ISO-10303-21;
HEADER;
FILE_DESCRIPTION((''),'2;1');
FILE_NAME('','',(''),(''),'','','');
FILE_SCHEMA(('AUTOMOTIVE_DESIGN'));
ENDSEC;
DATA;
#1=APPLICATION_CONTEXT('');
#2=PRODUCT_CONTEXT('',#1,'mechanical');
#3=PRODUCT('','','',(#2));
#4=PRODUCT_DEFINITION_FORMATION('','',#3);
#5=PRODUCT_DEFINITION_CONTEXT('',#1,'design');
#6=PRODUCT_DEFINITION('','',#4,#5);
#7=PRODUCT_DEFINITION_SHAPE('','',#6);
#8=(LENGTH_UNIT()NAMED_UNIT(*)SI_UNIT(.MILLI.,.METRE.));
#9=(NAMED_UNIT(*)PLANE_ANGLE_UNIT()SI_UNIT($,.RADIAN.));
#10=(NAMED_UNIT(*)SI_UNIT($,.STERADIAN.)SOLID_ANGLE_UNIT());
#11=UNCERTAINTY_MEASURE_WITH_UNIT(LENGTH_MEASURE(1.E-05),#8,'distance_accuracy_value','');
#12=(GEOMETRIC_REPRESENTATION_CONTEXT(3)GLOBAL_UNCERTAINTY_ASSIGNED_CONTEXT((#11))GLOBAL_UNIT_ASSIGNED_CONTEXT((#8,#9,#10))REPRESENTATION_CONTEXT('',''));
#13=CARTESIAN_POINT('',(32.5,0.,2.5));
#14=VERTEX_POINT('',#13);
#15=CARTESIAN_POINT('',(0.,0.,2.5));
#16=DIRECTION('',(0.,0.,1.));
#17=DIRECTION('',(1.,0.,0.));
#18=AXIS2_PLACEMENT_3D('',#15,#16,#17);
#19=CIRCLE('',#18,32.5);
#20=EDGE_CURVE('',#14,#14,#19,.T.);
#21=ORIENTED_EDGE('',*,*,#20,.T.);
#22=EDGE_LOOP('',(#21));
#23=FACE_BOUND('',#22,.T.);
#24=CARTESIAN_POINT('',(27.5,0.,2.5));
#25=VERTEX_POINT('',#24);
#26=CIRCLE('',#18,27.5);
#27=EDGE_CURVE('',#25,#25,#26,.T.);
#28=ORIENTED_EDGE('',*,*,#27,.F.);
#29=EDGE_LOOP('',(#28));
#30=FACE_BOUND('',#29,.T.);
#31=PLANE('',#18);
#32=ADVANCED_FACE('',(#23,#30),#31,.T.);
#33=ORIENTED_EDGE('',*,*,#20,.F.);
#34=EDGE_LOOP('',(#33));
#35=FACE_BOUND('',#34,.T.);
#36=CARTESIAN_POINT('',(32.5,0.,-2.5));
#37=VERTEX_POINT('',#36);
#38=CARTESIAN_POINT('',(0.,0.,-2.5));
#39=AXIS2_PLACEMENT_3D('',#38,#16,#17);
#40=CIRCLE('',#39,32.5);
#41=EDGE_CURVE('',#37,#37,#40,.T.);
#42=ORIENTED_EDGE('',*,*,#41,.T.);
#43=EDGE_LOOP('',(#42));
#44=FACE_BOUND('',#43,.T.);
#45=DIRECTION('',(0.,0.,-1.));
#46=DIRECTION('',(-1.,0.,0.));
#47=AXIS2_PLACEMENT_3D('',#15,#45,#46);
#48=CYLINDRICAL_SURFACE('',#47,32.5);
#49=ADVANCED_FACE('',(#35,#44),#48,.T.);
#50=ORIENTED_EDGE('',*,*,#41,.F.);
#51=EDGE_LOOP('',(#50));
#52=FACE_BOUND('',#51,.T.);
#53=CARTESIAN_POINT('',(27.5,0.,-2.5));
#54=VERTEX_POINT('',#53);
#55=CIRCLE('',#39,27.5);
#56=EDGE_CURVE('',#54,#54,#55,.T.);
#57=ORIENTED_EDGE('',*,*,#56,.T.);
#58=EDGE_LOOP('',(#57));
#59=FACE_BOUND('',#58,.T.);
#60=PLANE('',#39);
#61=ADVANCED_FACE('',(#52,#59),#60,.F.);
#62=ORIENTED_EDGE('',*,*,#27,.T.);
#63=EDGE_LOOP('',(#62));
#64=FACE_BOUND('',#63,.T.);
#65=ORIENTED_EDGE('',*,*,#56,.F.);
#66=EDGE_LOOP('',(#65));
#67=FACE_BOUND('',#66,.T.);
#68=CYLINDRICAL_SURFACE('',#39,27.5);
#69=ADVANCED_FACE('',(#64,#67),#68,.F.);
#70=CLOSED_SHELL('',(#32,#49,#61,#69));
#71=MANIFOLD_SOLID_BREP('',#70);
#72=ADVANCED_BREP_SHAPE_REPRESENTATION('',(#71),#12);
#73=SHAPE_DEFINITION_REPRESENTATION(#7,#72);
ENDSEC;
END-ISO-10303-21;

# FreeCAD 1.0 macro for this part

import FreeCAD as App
import Part
import Sketcher
Q = App.Units.Quantity

doc = App.newDocument("Part")
params = doc.addObject("Spreadsheet::Sheet", "Params")
for row, (alias, value) in enumerate([
    ("sketch1_diameter", "65 mm"),
    ("pad1_length", "5 mm"),
    ("sketch2_diameter", "55 mm"),
    ("pocket1_length", "5 mm"),
], start=1):
    params.set(f"A{row}", alias)
    params.set(f"B{row}", "=" + value)
    params.setAlias(f"B{row}", alias)

body = doc.addObject("PartDesign::Body", "Body")

# Sketch on XY plane
sketch1 = doc.addObject("Sketcher::SketchObject", "Sketch")
body.addObject(sketch1)
sketch1.AttachmentSupport = (doc.XY_Plane, [""])
sketch1.MapMode = "FlatFace"
sketch1.addGeometry(Part.Circle(App.Vector(0, 0, 0), App.Vector(0, 0, 1), 32), False)
sketch1.addConstraint([
    Sketcher.Constraint("Coincident", 0, 3, -1, 1),
    Sketcher.Constraint("Diameter", 0, Q("65 mm")),
])
sketch1.setExpression("Constraints[1]", "Params.sketch1_diameter")
pad1 = doc.addObject("PartDesign::Pad", "Pad")
body.addObject(pad1)
pad1.Profile = sketch1
pad1.setExpression("Length", "Params.pad1_length")
pad1.Midplane = True

# Sketch on XY plane
sketch2 = doc.addObject("Sketcher::SketchObject", "Sketch001")
body.addObject(sketch2)
sketch2.AttachmentSupport = (doc.XY_Plane, [""])
sketch2.MapMode = "FlatFace"
sketch2.AttachmentOffset = App.Placement(App.Vector(0, 0, 2.5), App.Rotation())
sketch2.addGeometry(Part.Circle(App.Vector(0, 0, 0), App.Vector(0, 0, 1), 28), False)
sketch2.addConstraint([
    Sketcher.Constraint("Coincident", 0, 3, -1, 1),
    Sketcher.Constraint("Diameter", 0, Q("55 mm")),
])
sketch2.setExpression("Constraints[1]", "Params.sketch2_diameter")
pocket1 = doc.addObject("PartDesign::Pocket", "Pocket")
body.addObject(pocket1)
pocket1.Profile = sketch2
pocket1.setExpression("Length", "Params.pocket1_length")

doc.recompute()
